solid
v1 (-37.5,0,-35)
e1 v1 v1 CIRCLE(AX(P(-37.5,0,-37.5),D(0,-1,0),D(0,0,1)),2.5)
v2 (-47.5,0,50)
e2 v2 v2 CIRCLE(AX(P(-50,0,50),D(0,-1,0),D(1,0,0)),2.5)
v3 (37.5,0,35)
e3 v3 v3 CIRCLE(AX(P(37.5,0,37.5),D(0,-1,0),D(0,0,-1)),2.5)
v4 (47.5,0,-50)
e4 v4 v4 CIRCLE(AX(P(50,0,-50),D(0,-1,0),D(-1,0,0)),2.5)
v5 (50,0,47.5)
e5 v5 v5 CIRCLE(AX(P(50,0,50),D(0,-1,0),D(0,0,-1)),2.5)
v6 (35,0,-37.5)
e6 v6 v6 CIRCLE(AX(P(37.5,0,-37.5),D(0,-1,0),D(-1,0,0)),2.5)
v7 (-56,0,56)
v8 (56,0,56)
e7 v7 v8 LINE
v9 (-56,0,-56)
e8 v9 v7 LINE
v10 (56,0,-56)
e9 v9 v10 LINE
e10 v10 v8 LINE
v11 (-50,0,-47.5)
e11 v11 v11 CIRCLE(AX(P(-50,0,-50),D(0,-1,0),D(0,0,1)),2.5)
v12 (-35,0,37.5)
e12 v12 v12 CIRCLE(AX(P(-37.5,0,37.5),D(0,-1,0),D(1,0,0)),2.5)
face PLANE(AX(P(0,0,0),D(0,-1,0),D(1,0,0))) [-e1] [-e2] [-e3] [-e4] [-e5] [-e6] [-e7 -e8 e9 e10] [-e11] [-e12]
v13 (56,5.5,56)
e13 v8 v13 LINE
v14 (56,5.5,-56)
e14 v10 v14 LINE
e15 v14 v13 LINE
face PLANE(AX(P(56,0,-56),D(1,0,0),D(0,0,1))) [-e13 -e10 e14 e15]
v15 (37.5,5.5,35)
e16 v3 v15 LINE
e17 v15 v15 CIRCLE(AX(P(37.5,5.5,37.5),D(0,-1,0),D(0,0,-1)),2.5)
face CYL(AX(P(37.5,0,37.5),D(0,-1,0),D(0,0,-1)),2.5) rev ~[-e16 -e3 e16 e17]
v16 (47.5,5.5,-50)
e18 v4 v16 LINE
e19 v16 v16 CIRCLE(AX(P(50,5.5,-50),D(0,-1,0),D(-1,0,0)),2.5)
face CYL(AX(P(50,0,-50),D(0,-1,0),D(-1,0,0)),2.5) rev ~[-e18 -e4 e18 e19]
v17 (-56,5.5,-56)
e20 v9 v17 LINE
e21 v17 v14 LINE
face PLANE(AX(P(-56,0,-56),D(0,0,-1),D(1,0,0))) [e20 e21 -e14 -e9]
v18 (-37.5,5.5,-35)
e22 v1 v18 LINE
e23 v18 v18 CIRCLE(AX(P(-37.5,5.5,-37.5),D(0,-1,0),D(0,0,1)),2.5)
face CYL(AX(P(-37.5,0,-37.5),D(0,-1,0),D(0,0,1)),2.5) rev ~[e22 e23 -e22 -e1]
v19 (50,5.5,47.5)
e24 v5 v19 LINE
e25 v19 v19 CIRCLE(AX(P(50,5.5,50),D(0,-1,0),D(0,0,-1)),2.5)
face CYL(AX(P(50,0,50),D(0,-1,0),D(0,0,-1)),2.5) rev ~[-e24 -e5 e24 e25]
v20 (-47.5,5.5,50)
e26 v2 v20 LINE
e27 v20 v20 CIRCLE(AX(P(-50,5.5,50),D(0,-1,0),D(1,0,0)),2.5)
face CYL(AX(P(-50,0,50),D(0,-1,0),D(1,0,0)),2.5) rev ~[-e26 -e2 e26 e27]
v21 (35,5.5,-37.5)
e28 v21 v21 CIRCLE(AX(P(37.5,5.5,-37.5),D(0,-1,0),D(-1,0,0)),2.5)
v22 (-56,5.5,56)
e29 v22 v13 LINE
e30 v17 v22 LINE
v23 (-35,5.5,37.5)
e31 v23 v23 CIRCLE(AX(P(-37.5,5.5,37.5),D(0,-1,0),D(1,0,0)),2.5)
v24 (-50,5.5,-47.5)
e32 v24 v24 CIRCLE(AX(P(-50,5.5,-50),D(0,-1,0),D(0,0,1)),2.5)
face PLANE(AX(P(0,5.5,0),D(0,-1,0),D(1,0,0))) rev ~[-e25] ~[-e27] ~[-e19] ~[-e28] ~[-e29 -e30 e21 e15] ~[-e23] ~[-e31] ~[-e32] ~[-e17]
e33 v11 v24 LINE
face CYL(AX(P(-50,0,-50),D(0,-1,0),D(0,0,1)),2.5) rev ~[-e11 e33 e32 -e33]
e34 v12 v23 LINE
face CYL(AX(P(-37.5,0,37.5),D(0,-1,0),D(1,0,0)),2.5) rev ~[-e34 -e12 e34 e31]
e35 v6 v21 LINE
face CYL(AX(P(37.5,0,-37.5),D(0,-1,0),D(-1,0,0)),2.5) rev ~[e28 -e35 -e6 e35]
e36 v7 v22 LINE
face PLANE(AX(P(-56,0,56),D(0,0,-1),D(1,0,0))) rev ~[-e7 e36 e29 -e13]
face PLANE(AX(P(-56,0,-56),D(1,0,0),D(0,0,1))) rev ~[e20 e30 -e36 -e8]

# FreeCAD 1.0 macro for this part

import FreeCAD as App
import Part
import Sketcher

doc = App.newDocument("Part")
body = doc.addObject("PartDesign::Body", "Body")

# Sketch on XZ plane
sketch1 = body.newObject("Sketcher::SketchObject", "Sketch")
sketch1.AttachmentSupport = (doc.getObject("XZ_Plane"), [""])
sketch1.MapMode = "FlatFace"
sketch1.addGeometry(Part.LineSegment(App.Vector(-56, 56, 0), App.Vector(-56, -56, 0)), False)
sketch1.addGeometry(Part.LineSegment(App.Vector(-56, -56, 0), App.Vector(56, -56, 0)), False)
sketch1.addGeometry(Part.LineSegment(App.Vector(56, -56, 0), App.Vector(56, 56, 0)), False)
sketch1.addGeometry(Part.LineSegment(App.Vector(56, 56, 0), App.Vector(-56, 56, 0)), False)
sketch1.addConstraint(Sketcher.Constraint("Coincident", 0, 2, 1, 1))
sketch1.addConstraint(Sketcher.Constraint("Coincident", 1, 2, 2, 1))
sketch1.addConstraint(Sketcher.Constraint("Coincident", 2, 2, 3, 1))
sketch1.addConstraint(Sketcher.Constraint("Coincident", 3, 2, 0, 1))
sketch1.addConstraint(Sketcher.Constraint("Vertical", 0))
sketch1.addConstraint(Sketcher.Constraint("Horizontal", 1))
sketch1.addConstraint(Sketcher.Constraint("Vertical", 2))
sketch1.addConstraint(Sketcher.Constraint("Horizontal", 3))
sketch1.addConstraint(Sketcher.Constraint("Symmetric", 0, 2, 2, 2, -1, 1))
sketch1.addConstraint(Sketcher.Constraint("Equal", 3, 0))
sketch1.addConstraint(Sketcher.Constraint("DistanceX", 1, 1, 1, 2, 112.0))
pad1 = body.newObject("PartDesign::Pad", "Pad")
pad1.Profile = sketch1
pad1.Length = 5.5
pad1.Reversed = True

# Sketch on XZ plane
sketch2 = body.newObject("Sketcher::SketchObject", "Sketch001")
sketch2.AttachmentSupport = (doc.getObject("XZ_Plane"), [""])
sketch2.MapMode = "FlatFace"
sketch2.addGeometry(Part.Circle(App.Vector(-50, 50, 0), App.Vector(0, 0, 1), 2.5), False)
sketch2.addGeometry(Part.Circle(App.Vector(-37.5, 37.5, 0), App.Vector(0, 0, 1), 2.5), False)
sketch2.addConstraint(Sketcher.Constraint("Equal", 0, 1))
sketch2.addConstraint(Sketcher.Constraint("Diameter", 0, 5.0))
sketch2.addConstraint(Sketcher.Constraint("DistanceX", 0, 3, -1, 1, 50.0))
sketch2.addConstraint(Sketcher.Constraint("DistanceY", -1, 1, 0, 3, 50.0))
sketch2.addConstraint(Sketcher.Constraint("DistanceX", 1, 3, -1, 1, 37.5))
sketch2.addConstraint(Sketcher.Constraint("DistanceY", -1, 1, 1, 3, 37.5))
pocket1 = body.newObject("PartDesign::Pocket", "Pocket")
pocket1.Profile = sketch2
pocket1.Type = "ThroughAll"
doc.recompute()

polarpattern = body.newObject("PartDesign::PolarPattern", "PolarPattern")
polarpattern.Originals = [pocket1]
polarpattern.Axis = (doc.getObject("Y_Axis"), [""])
polarpattern.Angle = 360
polarpattern.Occurrences = 4
body.Tip = polarpattern

doc.recompute()
